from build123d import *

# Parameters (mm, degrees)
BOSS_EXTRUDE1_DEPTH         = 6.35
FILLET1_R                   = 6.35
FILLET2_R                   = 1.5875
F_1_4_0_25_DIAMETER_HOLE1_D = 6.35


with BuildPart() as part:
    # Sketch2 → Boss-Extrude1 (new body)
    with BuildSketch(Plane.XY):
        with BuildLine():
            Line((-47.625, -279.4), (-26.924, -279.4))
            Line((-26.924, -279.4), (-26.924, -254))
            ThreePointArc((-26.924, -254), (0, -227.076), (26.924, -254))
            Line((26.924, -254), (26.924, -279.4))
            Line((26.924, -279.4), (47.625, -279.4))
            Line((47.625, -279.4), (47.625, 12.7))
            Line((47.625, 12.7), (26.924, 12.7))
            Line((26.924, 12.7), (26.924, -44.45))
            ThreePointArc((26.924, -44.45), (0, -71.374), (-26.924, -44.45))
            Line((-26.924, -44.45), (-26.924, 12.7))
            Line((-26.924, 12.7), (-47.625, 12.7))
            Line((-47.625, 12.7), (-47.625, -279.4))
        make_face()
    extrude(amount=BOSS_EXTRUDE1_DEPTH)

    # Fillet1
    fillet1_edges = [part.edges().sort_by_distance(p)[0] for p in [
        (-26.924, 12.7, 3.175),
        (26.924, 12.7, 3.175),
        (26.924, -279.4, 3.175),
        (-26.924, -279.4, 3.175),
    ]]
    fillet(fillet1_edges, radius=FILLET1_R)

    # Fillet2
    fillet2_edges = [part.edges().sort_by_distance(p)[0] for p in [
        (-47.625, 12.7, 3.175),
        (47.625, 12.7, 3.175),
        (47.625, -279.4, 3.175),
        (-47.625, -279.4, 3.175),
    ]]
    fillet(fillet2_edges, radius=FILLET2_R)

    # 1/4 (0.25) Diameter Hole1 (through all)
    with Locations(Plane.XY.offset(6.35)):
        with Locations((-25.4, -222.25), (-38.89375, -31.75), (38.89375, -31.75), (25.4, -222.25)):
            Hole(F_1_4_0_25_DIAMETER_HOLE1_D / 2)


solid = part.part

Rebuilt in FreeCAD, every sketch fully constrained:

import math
import FreeCAD as App
import Part
import Sketcher
from FreeCAD import Vector
Q = App.Units.Quantity


def edges_at(feature, points):
    """Names of the edges that pass closest to the given points."""
    edges = feature.Shape.Edges
    near = lambda p: min(range(len(edges)), key=lambda i: edges[i].distToShape(Part.Vertex(*p))[0])
    return sorted({f"Edge{near(p) + 1}" for p in points})

doc = App.newDocument("Part")
params = doc.addObject("Spreadsheet::Sheet", "Params")
for row, (alias, value) in enumerate([
    ("sketch1_height", "1 in"),
    ("sketch1_radius", "1.06 in"),
    ("sketch1_height2", "11.5 in"),
    ("sketch1_height3", "2.25 in"),
    ("sketch1_width", "0.815 in"),
    ("pad1_length", "0.25 in"),
    ("fillet_radius", "0.25 in"),
    ("fillet2_radius", "0.0625 in"),
    ("sketch2_diameter", "0.25 in"),
    ("hole_diameter", "0.25 in"),
], start=1):
    params.set(f"A{row}", alias)
    params.set(f"B{row}", "=" + value)
    params.setAlias(f"B{row}", alias)

body = doc.addObject("PartDesign::Body", "Body")

# Sketch on XY plane
sketch1 = doc.addObject("Sketcher::SketchObject", "Sketch")
body.addObject(sketch1)
sketch1.AttachmentSupport = (doc.XY_Plane, [""])
sketch1.MapMode = "FlatFace"
sketch1.addGeometry([
    Part.LineSegment(Vector(-48, -279, 0), Vector(-27, -279, 0)),  # 0
    Part.LineSegment(Vector(-27, -279, 0), Vector(-27, -254, 0)),  # 1
    Part.ArcOfCircle(Part.Circle(Vector(0, -254, 0), Vector(0, 0, 1), 27), math.radians(0), math.radians(180)),  # 2
    Part.LineSegment(Vector(27, -254, 0), Vector(27, -279, 0)),  # 3
    Part.LineSegment(Vector(27, -279, 0), Vector(48, -279, 0)),  # 4
    Part.LineSegment(Vector(48, -279, 0), Vector(48, 13, 0)),  # 5
    Part.LineSegment(Vector(48, 13, 0), Vector(27, 13, 0)),  # 6
    Part.LineSegment(Vector(27, 13, 0), Vector(27, -44, 0)),  # 7
    Part.ArcOfCircle(Part.Circle(Vector(0, -44, 0), Vector(0, 0, 1), 27), math.radians(180), math.radians(360)),  # 8
    Part.LineSegment(Vector(-27, -44, 0), Vector(-27, 13, 0)),  # 9
    Part.LineSegment(Vector(-27, 13, 0), Vector(-48, 13, 0)),  # 10
    Part.LineSegment(Vector(-48, 13, 0), Vector(-48, -279, 0)),  # 11
], False)
sketch1.addConstraint([
    Sketcher.Constraint("Coincident", 0, 2, 1, 1),
    Sketcher.Constraint("Tangent", 1, 2, 2, 2),
    Sketcher.Constraint("Tangent", 2, 1, 3, 1),
    Sketcher.Constraint("Coincident", 3, 2, 4, 1),
    Sketcher.Constraint("Coincident", 4, 2, 5, 1),
    Sketcher.Constraint("Coincident", 5, 2, 6, 1),
    Sketcher.Constraint("Coincident", 6, 2, 7, 1),
    Sketcher.Constraint("Tangent", 7, 2, 8, 2),
    Sketcher.Constraint("Tangent", 8, 1, 9, 1),
    Sketcher.Constraint("Coincident", 9, 2, 10, 1),
    Sketcher.Constraint("Coincident", 10, 2, 11, 1),
    Sketcher.Constraint("Coincident", 11, 2, 0, 1),
    Sketcher.Constraint("Horizontal", 0),
    Sketcher.Constraint("Vertical", 1),
    Sketcher.Constraint("Vertical", 3),
    Sketcher.Constraint("Horizontal", 4),
    Sketcher.Constraint("Vertical", 5),
    Sketcher.Constraint("Horizontal", 6),
    Sketcher.Constraint("Vertical", 7),
    Sketcher.Constraint("Vertical", 9),
    Sketcher.Constraint("Horizontal", 10),
    Sketcher.Constraint("Vertical", 11),
    Sketcher.Constraint("Equal", 2, 8),
    Sketcher.Constraint("Symmetric", 0, 2, 3, 2, -2),
    Sketcher.Constraint("Symmetric", 6, 2, 9, 2, -2),
    Sketcher.Constraint("Equal", 0, 4),
    Sketcher.Constraint("DistanceY", 1, 1, 1, 2, Q("1 in")),
    Sketcher.Constraint("Radius", 2, Q("1.06 in")),
    Sketcher.Constraint("DistanceY", 5, 1, 5, 2, Q("11.5 in")),
    Sketcher.Constraint("DistanceY", 2, 3, -1, 1, Q("10 in")),
    Sketcher.Constraint("DistanceY", 7, 2, 7, 1, Q("2.25 in")),
    Sketcher.Constraint("DistanceX", 0, 1, 0, 2, Q("0.815 in")),
])
sketch1.setExpression("Constraints[26]", "Params.sketch1_height")
sketch1.setExpression("Constraints[27]", "Params.sketch1_radius")
sketch1.setExpression("Constraints[28]", "Params.sketch1_height2")
sketch1.setExpression("Constraints[30]", "Params.sketch1_height3")
sketch1.setExpression("Constraints[31]", "Params.sketch1_width")
pad1 = doc.addObject("PartDesign::Pad", "Pad")
body.addObject(pad1)
pad1.Profile = sketch1
pad1.setExpression("Length", "Params.pad1_length")
doc.recompute()

fillet = doc.addObject("PartDesign::Fillet", "Fillet")
body.addObject(fillet)
fillet.Base = (pad1, edges_at(pad1, [
    (-26.924, 12.7, 3.175),
    (26.924, 12.7, 3.175),
    (26.924, -279.4, 3.175),
    (-26.924, -279.4, 3.175),
]))
fillet.setExpression("Radius", "Params.fillet_radius")
doc.recompute()

fillet2 = doc.addObject("PartDesign::Fillet", "Fillet001")
body.addObject(fillet2)
fillet2.Base = (fillet, edges_at(fillet, [
    (-47.625, 12.7, 3.175),
    (47.625, 12.7, 3.175),
    (47.625, -279.4, 3.175),
    (-47.625, -279.4, 3.175),
]))
fillet2.setExpression("Radius", "Params.fillet2_radius")

# Sketch on XY plane
sketch2 = doc.addObject("Sketcher::SketchObject", "Sketch001")
body.addObject(sketch2)
sketch2.AttachmentSupport = (doc.XY_Plane, [""])
sketch2.MapMode = "FlatFace"
sketch2.AttachmentOffset = App.Placement(Vector(0, 0, 0.25 * 25.4), App.Rotation())
sketch2.addGeometry([
    Part.Circle(Vector(-25.4, -222.2, 0), Vector(0, 0, 1), 3.2),
    Part.Circle(Vector(-38.9, -31.8, 0), Vector(0, 0, 1), 3.2),
    Part.Circle(Vector(38.9, -31.8, 0), Vector(0, 0, 1), 3.2),
    Part.Circle(Vector(25.4, -222.2, 0), Vector(0, 0, 1), 3.2),
], False)
sketch2.addConstraint([
    Sketcher.Constraint("Equal", 0, 1),
    Sketcher.Constraint("Equal", 1, 2),
    Sketcher.Constraint("Equal", 2, 3),
    Sketcher.Constraint("Symmetric", 1, 3, 2, 3, -2),
    Sketcher.Constraint("Symmetric", 0, 3, 3, 3, -2),
    Sketcher.Constraint("Diameter", 0, Q("0.25 in")),
    Sketcher.Constraint("DistanceX", 0, 3, -1, 1, Q("1 in")),
    Sketcher.Constraint("DistanceY", 0, 3, 1, 3, Q("7.5 in")),
    Sketcher.Constraint("DistanceY", 0, 3, -1, 1, Q("8.75 in")),
    Sketcher.Constraint("DistanceX", 1, 3, -1, 1, Q("1.53125 in")),
])
sketch2.setExpression("Constraints[5]", "Params.sketch2_diameter")
doc.recompute()
hole = doc.addObject("PartDesign::Hole", "Hole")
body.addObject(hole)
hole.Profile = sketch2
hole.ThreadType = "None"
hole.setExpression("Diameter", "Params.hole_diameter")
hole.DepthType = "ThroughAll"

doc.recompute()
